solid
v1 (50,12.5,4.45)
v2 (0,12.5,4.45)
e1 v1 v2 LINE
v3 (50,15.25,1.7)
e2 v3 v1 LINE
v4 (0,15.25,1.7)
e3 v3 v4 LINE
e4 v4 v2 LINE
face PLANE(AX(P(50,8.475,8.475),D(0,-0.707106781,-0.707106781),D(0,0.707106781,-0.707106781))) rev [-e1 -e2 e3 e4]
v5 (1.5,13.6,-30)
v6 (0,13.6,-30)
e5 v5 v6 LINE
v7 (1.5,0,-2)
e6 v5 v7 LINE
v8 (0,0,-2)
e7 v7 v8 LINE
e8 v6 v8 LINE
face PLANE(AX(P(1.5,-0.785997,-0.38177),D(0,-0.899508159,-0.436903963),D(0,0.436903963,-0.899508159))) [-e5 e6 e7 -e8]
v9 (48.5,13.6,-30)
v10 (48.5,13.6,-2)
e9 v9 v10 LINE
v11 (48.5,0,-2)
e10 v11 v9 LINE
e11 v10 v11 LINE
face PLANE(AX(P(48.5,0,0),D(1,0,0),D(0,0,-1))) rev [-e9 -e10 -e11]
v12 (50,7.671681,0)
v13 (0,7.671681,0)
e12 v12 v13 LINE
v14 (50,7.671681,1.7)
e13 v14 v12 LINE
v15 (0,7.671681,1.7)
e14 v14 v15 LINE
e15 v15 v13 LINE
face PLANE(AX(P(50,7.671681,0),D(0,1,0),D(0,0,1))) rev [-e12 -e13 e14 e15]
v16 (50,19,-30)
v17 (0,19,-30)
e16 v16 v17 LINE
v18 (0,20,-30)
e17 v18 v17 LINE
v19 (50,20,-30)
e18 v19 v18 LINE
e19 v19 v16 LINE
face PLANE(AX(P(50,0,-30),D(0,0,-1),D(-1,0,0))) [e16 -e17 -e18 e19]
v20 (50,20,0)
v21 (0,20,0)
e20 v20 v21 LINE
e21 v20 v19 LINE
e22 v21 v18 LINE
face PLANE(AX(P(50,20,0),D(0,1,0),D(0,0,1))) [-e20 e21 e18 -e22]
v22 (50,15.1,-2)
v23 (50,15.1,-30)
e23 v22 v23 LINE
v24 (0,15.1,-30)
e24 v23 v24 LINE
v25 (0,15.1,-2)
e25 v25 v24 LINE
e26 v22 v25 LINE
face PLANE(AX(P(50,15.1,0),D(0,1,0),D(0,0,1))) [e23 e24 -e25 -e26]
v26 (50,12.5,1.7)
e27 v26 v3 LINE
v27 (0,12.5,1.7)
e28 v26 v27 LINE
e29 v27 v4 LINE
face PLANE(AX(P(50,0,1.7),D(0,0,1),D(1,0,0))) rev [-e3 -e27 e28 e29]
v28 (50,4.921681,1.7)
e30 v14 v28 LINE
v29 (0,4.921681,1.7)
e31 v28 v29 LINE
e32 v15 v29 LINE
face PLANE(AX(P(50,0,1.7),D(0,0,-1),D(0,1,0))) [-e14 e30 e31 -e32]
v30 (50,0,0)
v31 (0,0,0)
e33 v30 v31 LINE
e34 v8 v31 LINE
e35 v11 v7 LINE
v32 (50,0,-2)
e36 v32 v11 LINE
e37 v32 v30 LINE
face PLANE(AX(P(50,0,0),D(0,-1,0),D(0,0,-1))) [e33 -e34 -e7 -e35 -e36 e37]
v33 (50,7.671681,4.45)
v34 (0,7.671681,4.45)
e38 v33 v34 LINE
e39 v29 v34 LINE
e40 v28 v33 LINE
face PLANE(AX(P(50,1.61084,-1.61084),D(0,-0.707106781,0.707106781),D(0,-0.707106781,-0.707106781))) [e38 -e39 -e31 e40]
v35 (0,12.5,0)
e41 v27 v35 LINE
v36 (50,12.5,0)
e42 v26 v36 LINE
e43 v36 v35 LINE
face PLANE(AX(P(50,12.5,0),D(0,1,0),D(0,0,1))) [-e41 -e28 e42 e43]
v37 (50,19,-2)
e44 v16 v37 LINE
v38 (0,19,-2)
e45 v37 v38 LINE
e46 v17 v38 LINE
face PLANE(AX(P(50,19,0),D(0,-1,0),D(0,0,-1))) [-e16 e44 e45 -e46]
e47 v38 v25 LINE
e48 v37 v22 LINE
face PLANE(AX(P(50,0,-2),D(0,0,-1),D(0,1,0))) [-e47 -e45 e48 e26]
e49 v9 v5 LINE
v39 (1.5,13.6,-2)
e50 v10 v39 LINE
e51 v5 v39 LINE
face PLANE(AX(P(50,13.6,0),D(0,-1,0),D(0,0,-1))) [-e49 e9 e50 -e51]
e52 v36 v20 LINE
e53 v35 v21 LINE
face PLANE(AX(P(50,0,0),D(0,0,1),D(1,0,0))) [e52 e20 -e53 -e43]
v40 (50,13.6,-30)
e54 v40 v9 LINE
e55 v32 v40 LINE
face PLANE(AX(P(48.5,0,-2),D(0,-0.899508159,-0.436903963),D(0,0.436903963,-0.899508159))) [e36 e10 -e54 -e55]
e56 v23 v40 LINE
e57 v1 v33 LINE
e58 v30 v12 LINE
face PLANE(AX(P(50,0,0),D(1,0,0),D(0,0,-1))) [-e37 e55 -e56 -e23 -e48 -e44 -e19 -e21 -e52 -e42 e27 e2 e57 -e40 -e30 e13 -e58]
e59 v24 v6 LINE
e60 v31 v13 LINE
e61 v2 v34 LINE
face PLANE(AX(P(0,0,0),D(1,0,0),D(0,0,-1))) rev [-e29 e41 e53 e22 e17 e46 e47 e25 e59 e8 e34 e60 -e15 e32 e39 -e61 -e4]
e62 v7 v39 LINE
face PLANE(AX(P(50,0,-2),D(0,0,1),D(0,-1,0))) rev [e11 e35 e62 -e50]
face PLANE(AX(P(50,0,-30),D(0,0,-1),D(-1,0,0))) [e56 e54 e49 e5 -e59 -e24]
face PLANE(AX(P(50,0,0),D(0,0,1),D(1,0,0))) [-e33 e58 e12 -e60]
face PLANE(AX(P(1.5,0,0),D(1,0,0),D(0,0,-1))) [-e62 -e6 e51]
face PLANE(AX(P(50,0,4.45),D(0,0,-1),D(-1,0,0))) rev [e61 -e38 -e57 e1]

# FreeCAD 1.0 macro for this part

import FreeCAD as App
import Part
import Sketcher

V = App.Vector
Q = App.Units.Quantity


def add_polygon(sketch, points):
    """Adds a closed chain of lines whose ends are joined by coincident constraints."""
    first, n = sketch.GeometryCount, len(points)
    for a, b in zip(points, points[1:] + points[:1]):
        sketch.addGeometry(Part.LineSegment(App.Vector(*a, 0), App.Vector(*b, 0)), False)
    for i in range(n):
        sketch.addConstraint(Sketcher.Constraint("Coincident", first + i, 2, first + (i + 1) % n, 1))

doc = App.newDocument("Part")
body = doc.addObject("PartDesign::Body", "Body")

# Sketch on YZ plane
sketch1 = body.newObject("Sketcher::SketchObject", "Sketch")
sketch1.AttachmentSupport = (doc.getObject("YZ_Plane"), [""])
sketch1.MapMode = "FlatFace"
add_polygon(sketch1, [(7.7, 0), (0, 0), (0, -2), (13.6, -2), (13.6, -30), (15.1, -30), (15.1, -2), (19, -2), (19, -30), (20, -30), (20, 0), (12.5, 0), (12.5, 1.7), (15.2, 1.7), (12.5, 4.5), (7.7, 4.5), (4.9, 1.7), (7.7, 1.7)])  # lines 0-17
sketch1.addConstraint(Sketcher.Constraint("Horizontal", 0))
sketch1.addConstraint(Sketcher.Constraint("Vertical", 1))
sketch1.addConstraint(Sketcher.Constraint("Horizontal", 2))
sketch1.addConstraint(Sketcher.Constraint("Vertical", 3))
sketch1.addConstraint(Sketcher.Constraint("Horizontal", 4))
sketch1.addConstraint(Sketcher.Constraint("Vertical", 5))
sketch1.addConstraint(Sketcher.Constraint("Horizontal", 6))
sketch1.addConstraint(Sketcher.Constraint("Vertical", 7))
sketch1.addConstraint(Sketcher.Constraint("Horizontal", 8))
sketch1.addConstraint(Sketcher.Constraint("Vertical", 9))
sketch1.addConstraint(Sketcher.Constraint("Horizontal", 10))
sketch1.addConstraint(Sketcher.Constraint("Vertical", 11))
sketch1.addConstraint(Sketcher.Constraint("Horizontal", 12))
sketch1.addConstraint(Sketcher.Constraint("Horizontal", 14))
sketch1.addConstraint(Sketcher.Constraint("Horizontal", 16))
sketch1.addConstraint(Sketcher.Constraint("Vertical", 17))
sketch1.addConstraint(Sketcher.Constraint("Coincident", 0, 2, -1, 1))
sketch1.addConstraint(Sketcher.Constraint("PointOnObject", 9, 2, -1))
sketch1.addConstraint(Sketcher.Constraint("Perpendicular", 13, 15))
sketch1.addConstraint(Sketcher.Constraint("Horizontal", 2, 2, 5, 2))
sketch1.addConstraint(Sketcher.Constraint("Horizontal", 4, 2, 7, 2))
sketch1.addConstraint(Sketcher.Constraint("Horizontal", 12, 2, 15, 2))
sketch1.addConstraint(Sketcher.Constraint("Vertical", 11, 2, 13, 2))
sketch1.addConstraint(Sketcher.Constraint("Vertical", 14, 2, 16, 2))
sketch1.addConstraint(Sketcher.Constraint("Equal", 12, 16))
sketch1.addConstraint(Sketcher.Constraint("DistanceX", 8, 1, 8, 2, Q("1 mm")))
sketch1.addConstraint(Sketcher.Constraint("DistanceY", 1, 2, 1, 1, Q("2 mm")))
sketch1.addConstraint(Sketcher.Constraint("DistanceY", 3, 2, 3, 1, Q("28 mm")))
sketch1.addConstraint(Sketcher.Constraint("DistanceX", 2, 1, 2, 2, Q("13.6 mm")))
sketch1.addConstraint(Sketcher.Constraint("DistanceX", 4, 1, 4, 2, Q("1.5 mm")))
sketch1.addConstraint(Sketcher.Constraint("DistanceX", 6, 1, 6, 2, Q("3.9 mm")))
sketch1.addConstraint(Sketcher.Constraint("DistanceX", 10, 2, 10, 1, Q("7.5 mm")))
sketch1.addConstraint(Sketcher.Constraint("DistanceY", 11, 1, 11, 2, Q("1.7 mm")))
sketch1.addConstraint(Sketcher.Constraint("DistanceX", 12, 1, 12, 2, Q("2.75 mm")))
sketch1.addConstraint(Sketcher.Constraint("DistanceX", 0, 2, 0, 1, Q("7.671681 mm")))
pad1 = body.newObject("PartDesign::Pad", "Pad")
pad1.Profile = sketch1
pad1.Length = 50

# Sketch on YZ plane
sketch2 = body.newObject("Sketcher::SketchObject", "Sketch001")
sketch2.AttachmentSupport = (doc.getObject("YZ_Plane"), [""])
sketch2.MapMode = "FlatFace"
add_polygon(sketch2, [(0, -2), (14, -30), (14, -2)])  # lines 0-2
sketch2.addConstraint(Sketcher.Constraint("Vertical", 1))
sketch2.addConstraint(Sketcher.Constraint("Horizontal", 2))
sketch2.addConstraint(Sketcher.Constraint("PointOnObject", 2, 2, -2))
sketch2.addConstraint(Sketcher.Constraint("DistanceY", 1, 1, 1, 2, Q("28 mm")))
sketch2.addConstraint(Sketcher.Constraint("DistanceX", 2, 2, 2, 1, Q("13.6 mm")))
sketch2.addConstraint(Sketcher.Constraint("DistanceY", 0, 2, -1, 1, Q("30 mm")))
pad2 = body.newObject("PartDesign::Pad", "Pad001")
pad2.Profile = sketch2
pad2.Length = 1.5

# Sketch on YZ plane
sketch3 = body.newObject("Sketcher::SketchObject", "Sketch002")
sketch3.AttachmentSupport = (doc.getObject("YZ_Plane"), [""])
sketch3.MapMode = "FlatFace"
sketch3.AttachmentOffset = App.Placement(V(0, 0, 50), App.Rotation())
add_polygon(sketch3, [(14, -2), (0, -2), (14, -30)])  # lines 0-2
sketch3.addConstraint(Sketcher.Constraint("Horizontal", 0))
sketch3.addConstraint(Sketcher.Constraint("Vertical", 2))
sketch3.addConstraint(Sketcher.Constraint("PointOnObject", 0, 2, -2))
sketch3.addConstraint(Sketcher.Constraint("DistanceY", 2, 1, 2, 2, Q("28 mm")))
sketch3.addConstraint(Sketcher.Constraint("DistanceX", 0, 2, 0, 1, Q("13.6 mm")))
sketch3.addConstraint(Sketcher.Constraint("DistanceY", 0, 2, -1, 1, Q("2 mm")))
pad3 = body.newObject("PartDesign::Pad", "Pad002")
pad3.Profile = sketch3
pad3.Length = 1.5
pad3.Reversed = True

doc.recompute()
